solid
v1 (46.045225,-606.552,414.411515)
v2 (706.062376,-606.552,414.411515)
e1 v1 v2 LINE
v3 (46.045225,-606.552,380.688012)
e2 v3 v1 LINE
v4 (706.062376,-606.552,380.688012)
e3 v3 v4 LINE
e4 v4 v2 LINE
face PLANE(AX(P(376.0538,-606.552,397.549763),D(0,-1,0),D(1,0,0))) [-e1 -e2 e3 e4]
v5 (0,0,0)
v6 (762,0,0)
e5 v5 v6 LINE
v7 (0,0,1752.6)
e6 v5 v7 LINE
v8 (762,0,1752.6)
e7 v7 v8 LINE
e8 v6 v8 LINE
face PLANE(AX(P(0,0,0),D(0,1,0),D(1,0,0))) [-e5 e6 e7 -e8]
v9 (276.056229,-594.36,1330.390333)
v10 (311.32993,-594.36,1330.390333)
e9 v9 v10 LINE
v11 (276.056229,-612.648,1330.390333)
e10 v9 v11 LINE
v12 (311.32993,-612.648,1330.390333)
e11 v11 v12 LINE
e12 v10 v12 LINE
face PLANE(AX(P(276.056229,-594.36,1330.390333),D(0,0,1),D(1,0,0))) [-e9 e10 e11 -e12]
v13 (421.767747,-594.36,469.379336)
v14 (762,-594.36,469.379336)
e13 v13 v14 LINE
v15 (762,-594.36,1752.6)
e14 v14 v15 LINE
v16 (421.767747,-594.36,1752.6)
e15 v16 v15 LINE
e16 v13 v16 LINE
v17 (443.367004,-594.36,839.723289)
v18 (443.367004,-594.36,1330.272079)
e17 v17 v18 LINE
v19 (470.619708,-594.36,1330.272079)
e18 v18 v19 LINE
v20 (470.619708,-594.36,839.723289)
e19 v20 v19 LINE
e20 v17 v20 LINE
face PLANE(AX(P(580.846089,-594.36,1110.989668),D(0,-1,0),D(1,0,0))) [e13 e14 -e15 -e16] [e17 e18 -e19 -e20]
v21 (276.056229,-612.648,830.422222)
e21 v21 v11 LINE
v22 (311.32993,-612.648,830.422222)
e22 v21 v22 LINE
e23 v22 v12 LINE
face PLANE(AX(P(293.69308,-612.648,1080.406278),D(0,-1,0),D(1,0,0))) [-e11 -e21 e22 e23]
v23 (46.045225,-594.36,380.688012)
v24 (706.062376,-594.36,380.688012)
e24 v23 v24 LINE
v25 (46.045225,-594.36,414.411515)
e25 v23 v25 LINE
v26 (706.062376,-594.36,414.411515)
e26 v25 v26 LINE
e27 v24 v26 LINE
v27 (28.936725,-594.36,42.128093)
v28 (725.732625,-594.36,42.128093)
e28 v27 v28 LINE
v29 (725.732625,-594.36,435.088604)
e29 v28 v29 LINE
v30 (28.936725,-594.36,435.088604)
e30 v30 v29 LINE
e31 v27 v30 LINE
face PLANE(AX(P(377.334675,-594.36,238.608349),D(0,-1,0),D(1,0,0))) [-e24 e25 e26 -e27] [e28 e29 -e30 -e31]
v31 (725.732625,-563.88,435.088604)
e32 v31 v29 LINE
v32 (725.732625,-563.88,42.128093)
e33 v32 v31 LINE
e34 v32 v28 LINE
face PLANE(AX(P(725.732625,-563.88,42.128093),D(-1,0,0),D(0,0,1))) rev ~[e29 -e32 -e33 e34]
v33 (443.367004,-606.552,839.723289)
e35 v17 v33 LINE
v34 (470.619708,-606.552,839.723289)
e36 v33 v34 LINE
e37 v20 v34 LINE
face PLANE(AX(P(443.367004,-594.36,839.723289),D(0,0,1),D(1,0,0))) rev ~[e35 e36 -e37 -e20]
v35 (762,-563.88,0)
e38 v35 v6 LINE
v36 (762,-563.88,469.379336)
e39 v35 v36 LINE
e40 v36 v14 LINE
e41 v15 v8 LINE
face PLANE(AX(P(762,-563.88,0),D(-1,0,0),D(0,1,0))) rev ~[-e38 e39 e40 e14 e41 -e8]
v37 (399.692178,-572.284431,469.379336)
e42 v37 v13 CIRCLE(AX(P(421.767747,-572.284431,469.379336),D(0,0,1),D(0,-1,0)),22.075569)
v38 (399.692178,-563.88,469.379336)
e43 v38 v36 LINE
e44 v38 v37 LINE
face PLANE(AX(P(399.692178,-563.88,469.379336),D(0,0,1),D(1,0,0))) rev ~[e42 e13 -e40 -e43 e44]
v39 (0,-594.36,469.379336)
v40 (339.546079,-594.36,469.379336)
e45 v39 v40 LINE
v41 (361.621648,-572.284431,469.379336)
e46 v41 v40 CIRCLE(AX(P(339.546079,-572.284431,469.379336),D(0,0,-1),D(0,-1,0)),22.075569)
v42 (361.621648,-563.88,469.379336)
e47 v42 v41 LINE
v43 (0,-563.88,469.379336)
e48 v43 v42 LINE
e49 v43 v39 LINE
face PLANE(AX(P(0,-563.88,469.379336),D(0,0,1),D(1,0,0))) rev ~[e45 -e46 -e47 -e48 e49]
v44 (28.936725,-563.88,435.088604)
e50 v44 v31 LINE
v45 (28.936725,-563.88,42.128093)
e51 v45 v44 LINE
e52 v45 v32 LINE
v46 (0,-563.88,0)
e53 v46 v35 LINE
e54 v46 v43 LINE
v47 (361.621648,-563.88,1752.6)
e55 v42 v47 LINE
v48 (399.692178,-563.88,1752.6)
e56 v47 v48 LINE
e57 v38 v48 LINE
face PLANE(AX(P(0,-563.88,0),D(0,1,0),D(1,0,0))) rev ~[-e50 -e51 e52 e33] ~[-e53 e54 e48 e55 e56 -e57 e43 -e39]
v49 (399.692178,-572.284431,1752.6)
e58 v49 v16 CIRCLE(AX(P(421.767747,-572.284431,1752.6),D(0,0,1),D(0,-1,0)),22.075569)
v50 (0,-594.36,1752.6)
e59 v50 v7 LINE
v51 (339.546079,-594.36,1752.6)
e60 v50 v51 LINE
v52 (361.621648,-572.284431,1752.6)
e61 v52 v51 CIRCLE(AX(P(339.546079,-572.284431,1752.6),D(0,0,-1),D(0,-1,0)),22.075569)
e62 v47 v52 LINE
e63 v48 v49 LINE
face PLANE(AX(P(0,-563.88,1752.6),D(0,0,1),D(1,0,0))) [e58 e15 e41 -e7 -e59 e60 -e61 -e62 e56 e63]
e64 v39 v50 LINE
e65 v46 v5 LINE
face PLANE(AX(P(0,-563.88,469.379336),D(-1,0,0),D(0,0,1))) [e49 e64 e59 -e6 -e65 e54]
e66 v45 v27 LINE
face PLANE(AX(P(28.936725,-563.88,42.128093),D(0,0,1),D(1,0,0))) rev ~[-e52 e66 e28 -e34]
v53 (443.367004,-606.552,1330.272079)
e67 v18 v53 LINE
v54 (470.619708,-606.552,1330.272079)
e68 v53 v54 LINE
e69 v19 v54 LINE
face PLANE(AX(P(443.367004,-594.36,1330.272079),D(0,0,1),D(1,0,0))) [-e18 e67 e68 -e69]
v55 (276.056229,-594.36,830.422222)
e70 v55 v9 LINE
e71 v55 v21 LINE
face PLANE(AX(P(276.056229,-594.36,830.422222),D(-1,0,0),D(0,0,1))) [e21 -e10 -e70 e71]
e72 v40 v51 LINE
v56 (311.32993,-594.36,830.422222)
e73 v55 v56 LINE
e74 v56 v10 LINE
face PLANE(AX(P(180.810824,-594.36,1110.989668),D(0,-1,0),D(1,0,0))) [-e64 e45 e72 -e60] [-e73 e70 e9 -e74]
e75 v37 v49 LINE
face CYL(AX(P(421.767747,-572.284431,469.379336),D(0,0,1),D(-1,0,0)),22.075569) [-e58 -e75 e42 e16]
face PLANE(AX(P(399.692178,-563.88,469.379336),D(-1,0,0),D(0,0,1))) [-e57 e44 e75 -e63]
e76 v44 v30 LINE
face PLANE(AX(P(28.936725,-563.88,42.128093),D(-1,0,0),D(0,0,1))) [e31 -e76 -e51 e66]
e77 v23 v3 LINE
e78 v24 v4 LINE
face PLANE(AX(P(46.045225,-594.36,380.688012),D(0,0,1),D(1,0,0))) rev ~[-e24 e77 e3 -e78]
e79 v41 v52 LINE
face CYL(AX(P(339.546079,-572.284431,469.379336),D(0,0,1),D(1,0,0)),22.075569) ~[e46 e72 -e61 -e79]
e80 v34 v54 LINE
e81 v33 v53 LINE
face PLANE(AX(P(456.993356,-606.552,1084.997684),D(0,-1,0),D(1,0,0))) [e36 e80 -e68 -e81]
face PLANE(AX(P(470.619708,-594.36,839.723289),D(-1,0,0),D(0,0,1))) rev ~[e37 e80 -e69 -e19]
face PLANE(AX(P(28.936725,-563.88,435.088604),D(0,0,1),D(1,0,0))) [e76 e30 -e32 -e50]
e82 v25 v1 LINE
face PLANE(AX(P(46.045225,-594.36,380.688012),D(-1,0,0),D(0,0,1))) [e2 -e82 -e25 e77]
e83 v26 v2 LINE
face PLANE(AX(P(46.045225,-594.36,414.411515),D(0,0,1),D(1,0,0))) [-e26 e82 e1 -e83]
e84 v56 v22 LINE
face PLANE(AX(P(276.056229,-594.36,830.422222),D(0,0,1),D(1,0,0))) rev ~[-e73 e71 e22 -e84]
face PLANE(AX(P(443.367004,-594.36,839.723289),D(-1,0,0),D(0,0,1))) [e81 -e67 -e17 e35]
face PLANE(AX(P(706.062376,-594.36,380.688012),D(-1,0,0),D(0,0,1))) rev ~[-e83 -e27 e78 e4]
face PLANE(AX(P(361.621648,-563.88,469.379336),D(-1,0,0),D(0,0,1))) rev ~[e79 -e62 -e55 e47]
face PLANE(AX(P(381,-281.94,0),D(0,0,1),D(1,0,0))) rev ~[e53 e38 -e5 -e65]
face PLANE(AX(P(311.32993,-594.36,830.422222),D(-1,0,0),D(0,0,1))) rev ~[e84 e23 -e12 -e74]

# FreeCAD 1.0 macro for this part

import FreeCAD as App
import Part
import Sketcher

V = App.Vector
Q = App.Units.Quantity


def edges_at(feature, points):
    """Names of the edges that pass closest to the given points."""
    edges = feature.Shape.Edges
    near = lambda p: min(range(len(edges)), key=lambda i: edges[i].distToShape(Part.Vertex(*p))[0])
    return sorted({f"Edge{near(p) + 1}" for p in points})


def add_polygon(sketch, points):
    """Adds a closed chain of lines whose ends are joined by coincident constraints."""
    first, n = sketch.GeometryCount, len(points)
    for a, b in zip(points, points[1:] + points[:1]):
        sketch.addGeometry(Part.LineSegment(App.Vector(*a, 0), App.Vector(*b, 0)), False)
    for i in range(n):
        sketch.addConstraint(Sketcher.Constraint("Coincident", first + i, 2, first + (i + 1) % n, 1))

doc = App.newDocument("Part")
params = doc.addObject("Spreadsheet::Sheet", "Params")
for row, (alias, value) in enumerate([
    ("sketch1_width", "30 in"),
    ("sketch1_height", "22.2 in"),
    ("pad1_length", "69 in"),
    ("pad2_length", "1.2 in"),
    ("pad3_length", "1.2 in"),
    ("fillet_radius", "22.075569 mm"),
    ("pad4_length", "0.72 in"),
    ("pad5_length", "0.48 in"),
    ("pad6_length", "0.48 in"),
], start=1):
    params.set(f"A{row}", alias)
    params.set(f"B{row}", "=" + value)
    params.setAlias(f"B{row}", alias)

body = doc.addObject("PartDesign::Body", "Body")

sketch1 = body.newObject("Sketcher::SketchObject", "Sketch")
sketch1.AttachmentSupport = (doc.getObject("XY_Plane"), [""])
sketch1.MapMode = "FlatFace"
add_polygon(sketch1, [(0, 0), (0, -563.88), (762, -563.88), (762, 0)])
sketch1.addConstraint(Sketcher.Constraint("Vertical", 0))
sketch1.addConstraint(Sketcher.Constraint("Horizontal", 1))
sketch1.addConstraint(Sketcher.Constraint("Vertical", 2))
sketch1.addConstraint(Sketcher.Constraint("Horizontal", 3))
sketch1.addConstraint(Sketcher.Constraint("Coincident", 3, 2, -1, 1))
sketch1.addConstraint(Sketcher.Constraint("DistanceX", 1, 1, 1, 2, Q("30 in")))
sketch1.addConstraint(Sketcher.Constraint("DistanceY", 0, 2, 0, 1, Q("22.2 in")))
sketch1.setExpression("Constraints[9]", "Params.sketch1_width")
sketch1.setExpression("Constraints[10]", "Params.sketch1_height")
pad1 = body.newObject("PartDesign::Pad", "Pad")
pad1.Profile = sketch1
pad1.setExpression("Length", "Params.pad1_length")

sketch2 = body.newObject("Sketcher::SketchObject", "Sketch001")
sketch2.AttachmentSupport = (doc.getObject("XZ_Plane"), [""])
sketch2.MapMode = "FlatFace"
sketch2.AttachmentOffset = App.Placement(V(0, 0, 22.2 * 25.4), App.Rotation())
add_polygon(sketch2, [(28.936725, 435.088604), (28.936725, 42.128093), (725.732625, 42.128093), (725.732625, 435.088604)])
sketch2.addConstraint(Sketcher.Constraint("Vertical", 0))
sketch2.addConstraint(Sketcher.Constraint("Horizontal", 1))
sketch2.addConstraint(Sketcher.Constraint("Vertical", 2))
sketch2.addConstraint(Sketcher.Constraint("Horizontal", 3))
sketch2.addConstraint(Sketcher.Constraint("DistanceX", 1, 1, 1, 2, Q("696.7959 mm")))
sketch2.addConstraint(Sketcher.Constraint("DistanceY", 0, 2, 0, 1, Q("392.960511 mm")))
sketch2.addConstraint(Sketcher.Constraint("DistanceX", -1, 1, 0, 2, Q("28.936725 mm")))
sketch2.addConstraint(Sketcher.Constraint("DistanceY", -1, 1, 0, 2, Q("42.128093 mm")))
pad2 = body.newObject("PartDesign::Pad", "Pad001")
pad2.Profile = sketch2
pad2.setExpression("Length", "Params.pad2_length")

sketch3 = body.newObject("Sketcher::SketchObject", "Sketch002")
sketch3.AttachmentSupport = (doc.getObject("XZ_Plane"), [""])
sketch3.MapMode = "FlatFace"
sketch3.AttachmentOffset = App.Placement(V(0, 0, 22.2 * 25.4), App.Rotation())
add_polygon(sketch3, [(0, 1752.6), (0, 469.379336), (361.621648, 469.379336), (361.621648, 1752.6)])
add_polygon(sketch3, [(399.692178, 1752.6), (399.692178, 469.379336), (762, 469.379336), (762, 1752.6)])
sketch3.addConstraint(Sketcher.Constraint("Vertical", 0))
sketch3.addConstraint(Sketcher.Constraint("Horizontal", 1))
sketch3.addConstraint(Sketcher.Constraint("Vertical", 2))
sketch3.addConstraint(Sketcher.Constraint("Horizontal", 3))
sketch3.addConstraint(Sketcher.Constraint("Vertical", 4))
sketch3.addConstraint(Sketcher.Constraint("Horizontal", 5))
sketch3.addConstraint(Sketcher.Constraint("Vertical", 6))
sketch3.addConstraint(Sketcher.Constraint("Horizontal", 7))
sketch3.addConstraint(Sketcher.Constraint("PointOnObject", 0, 2, -2))
sketch3.addConstraint(Sketcher.Constraint("Horizontal", 1, 2, 4, 2))
sketch3.addConstraint(Sketcher.Constraint("Horizontal", 3, 2, 6, 2))
sketch3.addConstraint(Sketcher.Constraint("DistanceY", -1, 1, 2, 2, Q("69 in")))
sketch3.addConstraint(Sketcher.Constraint("DistanceX", -1, 1, 5, 2, Q("30 in")))
sketch3.addConstraint(Sketcher.Constraint("DistanceX", 1, 1, 1, 2, Q("361.621648 mm")))
sketch3.addConstraint(Sketcher.Constraint("DistanceX", 5, 1, 5, 2, Q("362.307822 mm")))
sketch3.addConstraint(Sketcher.Constraint("DistanceY", 0, 2, 0, 1, Q("1283.220664 mm")))
pad3 = body.newObject("PartDesign::Pad", "Pad002")
pad3.Profile = sketch3
pad3.setExpression("Length", "Params.pad3_length")
doc.recompute()

fillet = body.newObject("PartDesign::Fillet", "Fillet")
fillet.Base = (pad3, edges_at(pad3, [(361.622, -594.36, 1110.99), (399.692, -594.36, 1110.99)]))
fillet.setExpression("Radius", "Params.fillet_radius")

sketch4 = body.newObject("Sketcher::SketchObject", "Sketch003")
sketch4.AttachmentSupport = (doc.getObject("XZ_Plane"), [""])
sketch4.MapMode = "FlatFace"
sketch4.AttachmentOffset = App.Placement(V(0, 0, 23.4 * 25.4), App.Rotation())
add_polygon(sketch4, [(276.056229, 1330.390333), (276.056229, 830.422222), (311.32993, 830.422222), (311.32993, 1330.390333)])
sketch4.addConstraint(Sketcher.Constraint("Vertical", 0))
sketch4.addConstraint(Sketcher.Constraint("Horizontal", 1))
sketch4.addConstraint(Sketcher.Constraint("Vertical", 2))
sketch4.addConstraint(Sketcher.Constraint("Horizontal", 3))
sketch4.addConstraint(Sketcher.Constraint("DistanceX", 1, 1, 1, 2, Q("35.273701 mm")))
sketch4.addConstraint(Sketcher.Constraint("DistanceY", 0, 2, 0, 1, Q("499.968111 mm")))
sketch4.addConstraint(Sketcher.Constraint("DistanceX", -1, 1, 0, 2, Q("276.056229 mm")))
sketch4.addConstraint(Sketcher.Constraint("DistanceY", -1, 1, 0, 2, Q("830.422222 mm")))
pad4 = body.newObject("PartDesign::Pad", "Pad003")
pad4.Profile = sketch4
pad4.setExpression("Length", "Params.pad4_length")

sketch5 = body.newObject("Sketcher::SketchObject", "Sketch004")
sketch5.AttachmentSupport = (doc.getObject("XZ_Plane"), [""])
sketch5.MapMode = "FlatFace"
sketch5.AttachmentOffset = App.Placement(V(0, 0, 23.4 * 25.4), App.Rotation())
add_polygon(sketch5, [(443.367004, 1330.272079), (443.367004, 839.723289), (470.619708, 839.723289), (470.619708, 1330.272079)])
sketch5.addConstraint(Sketcher.Constraint("Vertical", 0))
sketch5.addConstraint(Sketcher.Constraint("Horizontal", 1))
sketch5.addConstraint(Sketcher.Constraint("Vertical", 2))
sketch5.addConstraint(Sketcher.Constraint("Horizontal", 3))
sketch5.addConstraint(Sketcher.Constraint("DistanceY", 0, 2, 0, 1, Q("490.54879 mm")))
sketch5.addConstraint(Sketcher.Constraint("DistanceX", 1, 1, 1, 2, Q("27.252704 mm")))
sketch5.addConstraint(Sketcher.Constraint("DistanceY", -1, 1, 0, 2, Q("839.723289 mm")))
sketch5.addConstraint(Sketcher.Constraint("DistanceX", -1, 1, 1, 2, Q("470.619708 mm")))
pad5 = body.newObject("PartDesign::Pad", "Pad004")
pad5.Profile = sketch5
pad5.setExpression("Length", "Params.pad5_length")

sketch6 = body.newObject("Sketcher::SketchObject", "Sketch005")
sketch6.AttachmentSupport = (doc.getObject("XZ_Plane"), [""])
sketch6.MapMode = "FlatFace"
sketch6.AttachmentOffset = App.Placement(V(0, 0, 23.4 * 25.4), App.Rotation())
add_polygon(sketch6, [(46.045225, 414.411515), (46.045225, 380.688012), (706.062376, 380.688012), (706.062376, 414.411515)])
sketch6.addConstraint(Sketcher.Constraint("Vertical", 0))
sketch6.addConstraint(Sketcher.Constraint("Horizontal", 1))
sketch6.addConstraint(Sketcher.Constraint("Vertical", 2))
sketch6.addConstraint(Sketcher.Constraint("Horizontal", 3))
sketch6.addConstraint(Sketcher.Constraint("DistanceX", 1, 1, 1, 2, Q("660.017151 mm")))
sketch6.addConstraint(Sketcher.Constraint("DistanceY", 0, 2, 0, 1, Q("33.723503 mm")))
sketch6.addConstraint(Sketcher.Constraint("DistanceY", -1, 1, 0, 2, Q("380.688012 mm")))
sketch6.addConstraint(Sketcher.Constraint("DistanceX", -1, 1, 0, 2, Q("46.045225 mm")))
pad6 = body.newObject("PartDesign::Pad", "Pad005")
pad6.Profile = sketch6
pad6.setExpression("Length", "Params.pad6_length")

doc.recompute()
